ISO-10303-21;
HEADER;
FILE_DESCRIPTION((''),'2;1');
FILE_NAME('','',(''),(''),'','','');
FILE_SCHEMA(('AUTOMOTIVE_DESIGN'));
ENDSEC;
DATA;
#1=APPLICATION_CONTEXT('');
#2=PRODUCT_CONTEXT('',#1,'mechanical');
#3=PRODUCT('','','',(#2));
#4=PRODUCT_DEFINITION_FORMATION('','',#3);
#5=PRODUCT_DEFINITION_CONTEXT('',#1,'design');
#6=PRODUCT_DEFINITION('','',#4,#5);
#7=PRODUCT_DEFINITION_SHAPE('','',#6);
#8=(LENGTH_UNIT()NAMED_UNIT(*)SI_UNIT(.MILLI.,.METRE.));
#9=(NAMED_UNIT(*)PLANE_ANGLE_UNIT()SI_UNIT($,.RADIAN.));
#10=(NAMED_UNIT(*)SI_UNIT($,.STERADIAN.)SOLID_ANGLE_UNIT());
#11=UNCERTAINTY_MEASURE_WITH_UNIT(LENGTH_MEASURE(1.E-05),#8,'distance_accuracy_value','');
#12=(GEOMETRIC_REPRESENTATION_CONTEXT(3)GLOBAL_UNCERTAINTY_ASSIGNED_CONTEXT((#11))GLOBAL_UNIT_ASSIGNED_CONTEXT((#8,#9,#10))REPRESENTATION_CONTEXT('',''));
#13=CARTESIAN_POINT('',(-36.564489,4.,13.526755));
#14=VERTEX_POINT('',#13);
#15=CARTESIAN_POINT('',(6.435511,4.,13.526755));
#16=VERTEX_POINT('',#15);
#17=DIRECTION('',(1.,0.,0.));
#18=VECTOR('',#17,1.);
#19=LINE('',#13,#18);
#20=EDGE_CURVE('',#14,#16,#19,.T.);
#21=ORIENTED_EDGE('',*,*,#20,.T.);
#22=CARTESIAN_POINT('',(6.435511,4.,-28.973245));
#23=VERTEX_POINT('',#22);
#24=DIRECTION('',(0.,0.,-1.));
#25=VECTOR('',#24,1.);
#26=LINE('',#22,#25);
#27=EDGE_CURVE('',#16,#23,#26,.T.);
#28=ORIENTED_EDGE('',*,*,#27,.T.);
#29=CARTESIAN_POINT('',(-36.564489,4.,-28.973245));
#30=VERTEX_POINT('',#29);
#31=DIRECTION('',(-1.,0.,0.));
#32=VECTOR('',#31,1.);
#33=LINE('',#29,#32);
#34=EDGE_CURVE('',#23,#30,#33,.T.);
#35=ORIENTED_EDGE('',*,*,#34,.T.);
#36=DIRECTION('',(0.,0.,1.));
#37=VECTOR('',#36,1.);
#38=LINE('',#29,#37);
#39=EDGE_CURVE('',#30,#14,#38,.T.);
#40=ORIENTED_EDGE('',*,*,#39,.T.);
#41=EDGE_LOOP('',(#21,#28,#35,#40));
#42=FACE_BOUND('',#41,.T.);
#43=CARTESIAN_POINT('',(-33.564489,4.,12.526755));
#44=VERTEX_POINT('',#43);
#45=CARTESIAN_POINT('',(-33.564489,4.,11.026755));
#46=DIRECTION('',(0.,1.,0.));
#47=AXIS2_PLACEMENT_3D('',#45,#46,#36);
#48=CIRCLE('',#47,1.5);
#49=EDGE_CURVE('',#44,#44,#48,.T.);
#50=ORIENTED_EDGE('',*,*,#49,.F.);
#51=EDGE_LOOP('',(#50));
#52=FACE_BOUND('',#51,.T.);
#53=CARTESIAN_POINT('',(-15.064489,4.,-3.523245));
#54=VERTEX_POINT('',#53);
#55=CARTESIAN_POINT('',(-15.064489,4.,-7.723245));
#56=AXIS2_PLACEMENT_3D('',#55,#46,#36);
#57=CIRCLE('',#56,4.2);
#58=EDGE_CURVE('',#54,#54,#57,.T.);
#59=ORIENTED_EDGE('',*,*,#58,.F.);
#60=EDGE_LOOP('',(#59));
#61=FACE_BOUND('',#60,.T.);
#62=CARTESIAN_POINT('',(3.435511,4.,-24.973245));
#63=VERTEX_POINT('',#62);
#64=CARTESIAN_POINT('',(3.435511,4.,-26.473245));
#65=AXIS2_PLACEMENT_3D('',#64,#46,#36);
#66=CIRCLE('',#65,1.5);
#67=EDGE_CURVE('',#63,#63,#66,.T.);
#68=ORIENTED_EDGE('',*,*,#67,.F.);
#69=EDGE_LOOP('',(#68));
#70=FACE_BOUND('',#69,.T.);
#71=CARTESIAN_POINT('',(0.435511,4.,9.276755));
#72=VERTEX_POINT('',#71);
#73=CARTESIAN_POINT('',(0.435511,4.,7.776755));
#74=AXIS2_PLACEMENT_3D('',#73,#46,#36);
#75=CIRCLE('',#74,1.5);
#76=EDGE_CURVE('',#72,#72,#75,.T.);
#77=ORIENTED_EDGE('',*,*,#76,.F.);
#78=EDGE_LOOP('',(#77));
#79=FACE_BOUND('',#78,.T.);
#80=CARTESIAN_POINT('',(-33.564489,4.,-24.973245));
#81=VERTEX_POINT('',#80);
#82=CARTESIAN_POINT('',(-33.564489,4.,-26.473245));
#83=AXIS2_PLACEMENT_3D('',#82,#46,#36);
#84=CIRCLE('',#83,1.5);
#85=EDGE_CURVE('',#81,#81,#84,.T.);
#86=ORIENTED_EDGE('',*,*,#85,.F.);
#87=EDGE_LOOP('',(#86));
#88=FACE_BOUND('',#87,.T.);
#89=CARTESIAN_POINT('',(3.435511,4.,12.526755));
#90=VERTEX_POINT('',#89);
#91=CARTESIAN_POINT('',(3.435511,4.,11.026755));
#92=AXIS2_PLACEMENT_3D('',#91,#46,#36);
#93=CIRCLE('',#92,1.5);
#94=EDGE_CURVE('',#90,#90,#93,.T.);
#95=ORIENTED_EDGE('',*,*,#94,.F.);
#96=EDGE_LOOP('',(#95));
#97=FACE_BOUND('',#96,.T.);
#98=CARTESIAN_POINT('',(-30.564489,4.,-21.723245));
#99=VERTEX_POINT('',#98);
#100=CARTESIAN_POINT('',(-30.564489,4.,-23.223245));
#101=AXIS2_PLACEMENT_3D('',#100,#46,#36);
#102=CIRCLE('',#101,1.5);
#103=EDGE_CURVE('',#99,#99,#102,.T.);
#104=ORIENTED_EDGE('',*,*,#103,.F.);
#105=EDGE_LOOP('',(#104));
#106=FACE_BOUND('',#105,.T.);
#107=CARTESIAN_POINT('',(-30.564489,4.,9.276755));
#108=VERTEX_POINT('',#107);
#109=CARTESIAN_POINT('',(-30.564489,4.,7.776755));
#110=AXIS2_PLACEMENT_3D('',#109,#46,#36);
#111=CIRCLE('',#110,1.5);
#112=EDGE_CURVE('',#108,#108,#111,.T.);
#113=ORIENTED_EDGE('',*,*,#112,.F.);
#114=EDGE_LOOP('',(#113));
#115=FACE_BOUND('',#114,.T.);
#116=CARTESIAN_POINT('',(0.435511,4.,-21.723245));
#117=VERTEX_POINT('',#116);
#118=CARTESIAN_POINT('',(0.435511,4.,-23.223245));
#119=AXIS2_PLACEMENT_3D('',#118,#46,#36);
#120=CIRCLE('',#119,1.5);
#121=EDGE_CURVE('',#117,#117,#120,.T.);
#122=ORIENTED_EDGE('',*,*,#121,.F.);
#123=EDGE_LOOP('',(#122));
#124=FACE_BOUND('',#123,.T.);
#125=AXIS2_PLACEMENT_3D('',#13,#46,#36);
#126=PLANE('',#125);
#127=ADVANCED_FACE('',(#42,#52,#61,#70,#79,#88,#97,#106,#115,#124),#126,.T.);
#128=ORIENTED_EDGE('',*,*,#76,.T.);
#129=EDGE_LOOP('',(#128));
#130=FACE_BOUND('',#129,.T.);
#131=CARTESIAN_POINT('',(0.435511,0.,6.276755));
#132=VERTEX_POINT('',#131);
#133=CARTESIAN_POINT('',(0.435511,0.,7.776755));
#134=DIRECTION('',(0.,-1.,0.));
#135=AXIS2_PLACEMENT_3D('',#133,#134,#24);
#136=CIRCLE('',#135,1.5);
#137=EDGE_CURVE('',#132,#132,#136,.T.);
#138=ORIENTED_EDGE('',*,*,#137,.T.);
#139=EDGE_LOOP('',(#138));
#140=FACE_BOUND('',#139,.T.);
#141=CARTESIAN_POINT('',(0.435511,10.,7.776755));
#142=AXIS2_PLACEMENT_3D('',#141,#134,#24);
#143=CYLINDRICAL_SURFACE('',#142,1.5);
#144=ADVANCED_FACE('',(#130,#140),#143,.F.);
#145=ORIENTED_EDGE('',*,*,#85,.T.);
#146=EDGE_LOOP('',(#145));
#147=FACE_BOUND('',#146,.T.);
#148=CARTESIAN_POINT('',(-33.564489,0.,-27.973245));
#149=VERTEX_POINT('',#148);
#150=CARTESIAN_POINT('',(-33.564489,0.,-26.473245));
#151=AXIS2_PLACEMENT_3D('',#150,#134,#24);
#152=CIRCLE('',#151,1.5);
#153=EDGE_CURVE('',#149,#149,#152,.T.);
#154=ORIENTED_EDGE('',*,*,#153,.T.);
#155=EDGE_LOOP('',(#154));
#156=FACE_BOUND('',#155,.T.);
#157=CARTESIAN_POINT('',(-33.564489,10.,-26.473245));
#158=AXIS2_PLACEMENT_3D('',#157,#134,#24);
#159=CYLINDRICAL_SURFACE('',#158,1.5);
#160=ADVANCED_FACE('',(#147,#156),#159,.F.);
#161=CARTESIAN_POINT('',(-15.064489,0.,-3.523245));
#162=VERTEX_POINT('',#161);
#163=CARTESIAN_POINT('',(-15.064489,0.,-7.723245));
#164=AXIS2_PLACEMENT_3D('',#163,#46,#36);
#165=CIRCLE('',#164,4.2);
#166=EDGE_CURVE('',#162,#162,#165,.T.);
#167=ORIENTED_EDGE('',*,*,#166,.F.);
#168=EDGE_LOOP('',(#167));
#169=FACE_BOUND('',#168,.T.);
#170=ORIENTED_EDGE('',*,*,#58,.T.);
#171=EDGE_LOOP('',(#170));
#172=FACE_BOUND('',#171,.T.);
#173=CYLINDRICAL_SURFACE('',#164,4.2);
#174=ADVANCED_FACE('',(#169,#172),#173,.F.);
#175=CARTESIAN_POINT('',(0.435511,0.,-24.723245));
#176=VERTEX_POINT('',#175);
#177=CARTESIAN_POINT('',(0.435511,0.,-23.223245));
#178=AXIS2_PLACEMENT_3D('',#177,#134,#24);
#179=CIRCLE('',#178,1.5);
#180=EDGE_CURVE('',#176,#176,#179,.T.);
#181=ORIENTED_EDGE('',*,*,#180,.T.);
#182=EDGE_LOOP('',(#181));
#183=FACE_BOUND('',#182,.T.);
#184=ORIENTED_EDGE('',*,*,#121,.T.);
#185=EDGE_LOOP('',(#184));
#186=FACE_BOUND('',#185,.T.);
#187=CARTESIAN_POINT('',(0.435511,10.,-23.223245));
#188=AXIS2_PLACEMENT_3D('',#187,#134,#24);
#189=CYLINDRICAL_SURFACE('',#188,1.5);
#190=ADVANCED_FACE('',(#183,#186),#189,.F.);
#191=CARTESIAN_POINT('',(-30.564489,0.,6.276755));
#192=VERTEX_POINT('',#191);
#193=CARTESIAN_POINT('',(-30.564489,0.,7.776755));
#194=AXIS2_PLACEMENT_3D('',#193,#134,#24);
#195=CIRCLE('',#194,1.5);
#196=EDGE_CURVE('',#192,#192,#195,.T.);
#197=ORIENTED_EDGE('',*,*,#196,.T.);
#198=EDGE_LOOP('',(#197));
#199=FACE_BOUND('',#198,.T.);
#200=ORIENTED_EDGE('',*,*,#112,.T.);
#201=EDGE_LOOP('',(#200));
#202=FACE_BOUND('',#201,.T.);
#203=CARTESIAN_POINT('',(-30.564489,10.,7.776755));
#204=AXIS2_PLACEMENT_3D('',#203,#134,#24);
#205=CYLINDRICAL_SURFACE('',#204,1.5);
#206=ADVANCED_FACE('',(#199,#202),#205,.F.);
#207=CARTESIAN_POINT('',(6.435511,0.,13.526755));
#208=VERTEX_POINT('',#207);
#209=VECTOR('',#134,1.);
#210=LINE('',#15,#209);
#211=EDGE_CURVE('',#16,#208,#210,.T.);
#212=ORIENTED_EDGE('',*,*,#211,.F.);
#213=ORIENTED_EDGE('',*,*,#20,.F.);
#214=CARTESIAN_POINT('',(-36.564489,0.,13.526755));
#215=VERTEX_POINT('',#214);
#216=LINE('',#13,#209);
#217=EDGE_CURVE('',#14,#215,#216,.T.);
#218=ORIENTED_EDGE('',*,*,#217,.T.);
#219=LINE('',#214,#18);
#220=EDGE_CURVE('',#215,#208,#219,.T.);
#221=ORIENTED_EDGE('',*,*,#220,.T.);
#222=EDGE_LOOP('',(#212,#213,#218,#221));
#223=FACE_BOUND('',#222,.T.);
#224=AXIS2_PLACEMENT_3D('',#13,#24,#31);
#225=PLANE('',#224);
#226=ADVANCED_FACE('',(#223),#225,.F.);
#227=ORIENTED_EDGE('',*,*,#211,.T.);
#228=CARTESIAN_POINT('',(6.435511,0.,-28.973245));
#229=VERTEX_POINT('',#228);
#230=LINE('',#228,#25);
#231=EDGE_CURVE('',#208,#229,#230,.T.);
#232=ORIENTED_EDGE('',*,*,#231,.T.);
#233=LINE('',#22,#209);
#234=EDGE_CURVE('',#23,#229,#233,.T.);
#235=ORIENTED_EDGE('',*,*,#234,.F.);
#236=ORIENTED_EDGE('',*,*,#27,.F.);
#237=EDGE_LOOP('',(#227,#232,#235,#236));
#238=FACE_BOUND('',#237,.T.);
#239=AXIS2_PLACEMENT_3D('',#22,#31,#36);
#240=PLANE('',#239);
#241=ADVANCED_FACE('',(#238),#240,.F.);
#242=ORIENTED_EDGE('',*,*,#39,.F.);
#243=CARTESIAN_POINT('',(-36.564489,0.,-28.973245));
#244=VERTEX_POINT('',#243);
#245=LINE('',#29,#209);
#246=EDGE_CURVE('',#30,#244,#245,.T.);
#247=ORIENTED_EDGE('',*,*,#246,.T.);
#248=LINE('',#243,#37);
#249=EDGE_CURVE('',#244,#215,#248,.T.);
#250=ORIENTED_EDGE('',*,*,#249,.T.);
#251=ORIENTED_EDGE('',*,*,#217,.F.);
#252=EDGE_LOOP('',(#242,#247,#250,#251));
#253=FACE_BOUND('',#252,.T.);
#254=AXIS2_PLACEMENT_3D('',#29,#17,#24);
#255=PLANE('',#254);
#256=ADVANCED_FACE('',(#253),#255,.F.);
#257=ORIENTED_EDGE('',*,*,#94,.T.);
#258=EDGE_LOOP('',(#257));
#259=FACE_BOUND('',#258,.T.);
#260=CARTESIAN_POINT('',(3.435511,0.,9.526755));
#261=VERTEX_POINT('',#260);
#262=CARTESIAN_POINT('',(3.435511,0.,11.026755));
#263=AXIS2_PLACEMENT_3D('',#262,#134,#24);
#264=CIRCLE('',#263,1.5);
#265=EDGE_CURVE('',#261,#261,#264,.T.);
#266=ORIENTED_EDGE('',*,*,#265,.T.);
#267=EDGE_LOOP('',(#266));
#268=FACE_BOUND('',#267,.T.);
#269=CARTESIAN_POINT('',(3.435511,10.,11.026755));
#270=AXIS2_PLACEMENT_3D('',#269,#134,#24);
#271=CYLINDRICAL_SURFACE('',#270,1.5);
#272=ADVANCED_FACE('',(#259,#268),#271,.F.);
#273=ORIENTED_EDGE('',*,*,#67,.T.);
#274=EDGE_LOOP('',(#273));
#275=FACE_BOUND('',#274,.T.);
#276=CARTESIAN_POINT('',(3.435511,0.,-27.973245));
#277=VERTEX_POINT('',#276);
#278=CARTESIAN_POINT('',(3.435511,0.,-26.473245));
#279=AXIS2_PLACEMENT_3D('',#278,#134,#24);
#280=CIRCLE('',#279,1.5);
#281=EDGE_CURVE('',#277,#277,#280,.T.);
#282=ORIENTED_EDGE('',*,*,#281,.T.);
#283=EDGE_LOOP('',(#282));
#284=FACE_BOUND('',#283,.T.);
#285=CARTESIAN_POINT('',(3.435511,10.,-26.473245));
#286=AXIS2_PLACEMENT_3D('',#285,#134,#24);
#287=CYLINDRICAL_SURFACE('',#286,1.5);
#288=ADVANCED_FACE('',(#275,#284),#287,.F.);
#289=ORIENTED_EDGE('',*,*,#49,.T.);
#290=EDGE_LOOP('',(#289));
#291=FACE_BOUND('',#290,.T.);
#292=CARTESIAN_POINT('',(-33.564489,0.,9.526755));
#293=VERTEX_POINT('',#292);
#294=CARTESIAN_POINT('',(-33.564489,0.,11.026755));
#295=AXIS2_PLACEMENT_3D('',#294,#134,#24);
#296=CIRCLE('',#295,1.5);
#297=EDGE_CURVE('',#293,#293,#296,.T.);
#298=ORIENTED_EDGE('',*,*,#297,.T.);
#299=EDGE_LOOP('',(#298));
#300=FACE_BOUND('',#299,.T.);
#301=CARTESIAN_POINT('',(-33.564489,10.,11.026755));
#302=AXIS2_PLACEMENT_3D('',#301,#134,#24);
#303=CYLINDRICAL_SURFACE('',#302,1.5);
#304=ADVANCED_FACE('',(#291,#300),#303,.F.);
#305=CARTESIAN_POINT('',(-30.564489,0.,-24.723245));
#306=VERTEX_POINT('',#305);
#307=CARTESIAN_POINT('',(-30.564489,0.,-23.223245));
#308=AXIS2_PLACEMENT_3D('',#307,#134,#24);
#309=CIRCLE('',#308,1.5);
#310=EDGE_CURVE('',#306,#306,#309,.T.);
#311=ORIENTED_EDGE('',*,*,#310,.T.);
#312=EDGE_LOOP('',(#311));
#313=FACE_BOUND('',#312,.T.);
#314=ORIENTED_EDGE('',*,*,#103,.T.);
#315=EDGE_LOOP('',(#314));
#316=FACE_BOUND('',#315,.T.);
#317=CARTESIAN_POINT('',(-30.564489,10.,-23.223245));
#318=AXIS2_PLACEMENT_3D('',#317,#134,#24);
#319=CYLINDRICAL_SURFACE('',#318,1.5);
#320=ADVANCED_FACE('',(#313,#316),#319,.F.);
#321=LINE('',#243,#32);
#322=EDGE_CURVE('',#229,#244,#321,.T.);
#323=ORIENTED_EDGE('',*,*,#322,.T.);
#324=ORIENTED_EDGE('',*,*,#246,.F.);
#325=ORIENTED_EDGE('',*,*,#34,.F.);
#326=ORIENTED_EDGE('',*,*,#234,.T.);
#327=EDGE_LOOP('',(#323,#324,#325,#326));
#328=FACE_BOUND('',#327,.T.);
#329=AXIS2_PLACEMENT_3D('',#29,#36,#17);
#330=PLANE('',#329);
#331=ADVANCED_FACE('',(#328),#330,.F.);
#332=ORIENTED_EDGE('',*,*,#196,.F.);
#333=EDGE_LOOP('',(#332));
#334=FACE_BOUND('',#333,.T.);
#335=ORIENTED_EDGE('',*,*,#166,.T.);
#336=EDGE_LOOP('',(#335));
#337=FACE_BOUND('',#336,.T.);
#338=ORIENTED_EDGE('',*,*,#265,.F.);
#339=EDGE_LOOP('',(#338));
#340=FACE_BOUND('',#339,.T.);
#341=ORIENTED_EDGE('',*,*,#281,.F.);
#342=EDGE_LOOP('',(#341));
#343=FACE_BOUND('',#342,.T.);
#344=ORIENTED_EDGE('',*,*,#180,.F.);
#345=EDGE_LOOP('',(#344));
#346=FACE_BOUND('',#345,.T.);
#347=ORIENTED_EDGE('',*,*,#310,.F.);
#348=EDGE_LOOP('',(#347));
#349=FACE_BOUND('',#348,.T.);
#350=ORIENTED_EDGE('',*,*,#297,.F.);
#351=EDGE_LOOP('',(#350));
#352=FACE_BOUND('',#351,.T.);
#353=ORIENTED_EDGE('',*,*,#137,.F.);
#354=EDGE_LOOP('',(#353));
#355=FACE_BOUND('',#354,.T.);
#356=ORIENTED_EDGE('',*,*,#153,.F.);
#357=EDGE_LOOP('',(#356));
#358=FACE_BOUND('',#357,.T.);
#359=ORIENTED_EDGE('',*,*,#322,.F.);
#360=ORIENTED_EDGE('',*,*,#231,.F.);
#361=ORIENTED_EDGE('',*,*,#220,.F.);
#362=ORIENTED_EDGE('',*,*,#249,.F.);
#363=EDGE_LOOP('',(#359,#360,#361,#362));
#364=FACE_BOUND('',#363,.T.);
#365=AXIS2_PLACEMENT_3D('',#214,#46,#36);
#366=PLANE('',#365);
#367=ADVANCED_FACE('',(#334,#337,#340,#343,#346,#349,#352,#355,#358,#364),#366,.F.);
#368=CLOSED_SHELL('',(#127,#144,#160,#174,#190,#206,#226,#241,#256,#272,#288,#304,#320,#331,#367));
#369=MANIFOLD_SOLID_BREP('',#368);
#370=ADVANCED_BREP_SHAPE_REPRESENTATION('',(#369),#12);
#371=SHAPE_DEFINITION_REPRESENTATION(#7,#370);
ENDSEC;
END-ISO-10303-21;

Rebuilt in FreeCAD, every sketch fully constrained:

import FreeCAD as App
import Part
import Sketcher
Q = App.Units.Quantity


def add_polygon(sketch, points):
    """Adds a closed chain of lines whose ends are joined by coincident constraints."""
    first, n = sketch.GeometryCount, len(points)
    for a, b in zip(points, points[1:] + points[:1]):
        sketch.addGeometry(Part.LineSegment(App.Vector(*a, 0), App.Vector(*b, 0)), False)
    for i in range(n):
        sketch.addConstraint(Sketcher.Constraint("Coincident", first + i, 2, first + (i + 1) % n, 1))

doc = App.newDocument("Part")
body = doc.addObject("PartDesign::Body", "Body")

# Sketch on XZ plane
sketch1 = body.newObject("Sketcher::SketchObject", "Sketch")
sketch1.AttachmentSupport = (doc.getObject("XZ_Plane"), [""])
sketch1.MapMode = "FlatFace"
add_polygon(sketch1, [(-37, -29), (-37, 14), (6, 14), (6, -29)])  # lines 0-3
sketch1.addConstraint(Sketcher.Constraint("Vertical", 0))
sketch1.addConstraint(Sketcher.Constraint("Horizontal", 1))
sketch1.addConstraint(Sketcher.Constraint("Vertical", 2))
sketch1.addConstraint(Sketcher.Constraint("Horizontal", 3))
sketch1.addConstraint(Sketcher.Constraint("DistanceX", 1, 1, 1, 2, Q("43 mm")))
sketch1.addConstraint(Sketcher.Constraint("DistanceY", 0, 1, 0, 2, Q("42.5 mm")))
sketch1.addConstraint(Sketcher.Constraint("DistanceX", 0, 2, -1, 1, Q("36.564489 mm")))
sketch1.addConstraint(Sketcher.Constraint("DistanceY", -1, 1, 0, 2, Q("13.526755 mm")))
pad1 = body.newObject("PartDesign::Pad", "Pad")
pad1.Profile = sketch1
pad1.Length = 4
pad1.Reversed = True

# Sketch on XZ plane
sketch2 = body.newObject("Sketcher::SketchObject", "Sketch001")
sketch2.AttachmentSupport = (doc.getObject("XZ_Plane"), [""])
sketch2.MapMode = "FlatFace"
sketch2.addGeometry(Part.Circle(App.Vector(-33.6, 11, 0), App.Vector(0, 0, 1), 1.5), False)
sketch2.addGeometry(Part.Circle(App.Vector(3.4, 11, 0), App.Vector(0, 0, 1), 1.5), False)
sketch2.addGeometry(Part.Circle(App.Vector(-33.6, -26.5, 0), App.Vector(0, 0, 1), 1.5), False)
sketch2.addGeometry(Part.Circle(App.Vector(3.4, -26.5, 0), App.Vector(0, 0, 1), 1.5), False)
sketch2.addConstraint(Sketcher.Constraint("Equal", 0, 1))
sketch2.addConstraint(Sketcher.Constraint("Equal", 1, 2))
sketch2.addConstraint(Sketcher.Constraint("Equal", 2, 3))
sketch2.addConstraint(Sketcher.Constraint("Horizontal", 0, 3, 1, 3))
sketch2.addConstraint(Sketcher.Constraint("Horizontal", 2, 3, 3, 3))
sketch2.addConstraint(Sketcher.Constraint("Vertical", 0, 3, 2, 3))
sketch2.addConstraint(Sketcher.Constraint("Vertical", 1, 3, 3, 3))
sketch2.addConstraint(Sketcher.Constraint("Diameter", 0, Q("3 mm")))
sketch2.addConstraint(Sketcher.Constraint("DistanceX", 0, 3, 1, 3, Q("37 mm")))
sketch2.addConstraint(Sketcher.Constraint("DistanceY", 2, 3, 0, 3, Q("37.5 mm")))
sketch2.addConstraint(Sketcher.Constraint("DistanceX", 0, 3, -1, 1, Q("33.564489 mm")))
sketch2.addConstraint(Sketcher.Constraint("DistanceY", -1, 1, 0, 3, Q("11.026755 mm")))
pocket1 = body.newObject("PartDesign::Pocket", "Pocket")
pocket1.Profile = sketch2
pocket1.Length = 10

# Sketch on XZ plane
sketch3 = body.newObject("Sketcher::SketchObject", "Sketch002")
sketch3.AttachmentSupport = (doc.getObject("XZ_Plane"), [""])
sketch3.MapMode = "FlatFace"
sketch3.addGeometry(Part.Circle(App.Vector(-30.6, 7.8, 0), App.Vector(0, 0, 1), 1.5), False)
sketch3.addGeometry(Part.Circle(App.Vector(-30.6, -23.2, 0), App.Vector(0, 0, 1), 1.5), False)
sketch3.addGeometry(Part.Circle(App.Vector(0.4, 7.8, 0), App.Vector(0, 0, 1), 1.5), False)
sketch3.addGeometry(Part.Circle(App.Vector(0.4, -23.2, 0), App.Vector(0, 0, 1), 1.5), False)
sketch3.addConstraint(Sketcher.Constraint("Equal", 0, 1))
sketch3.addConstraint(Sketcher.Constraint("Equal", 1, 2))
sketch3.addConstraint(Sketcher.Constraint("Equal", 2, 3))
sketch3.addConstraint(Sketcher.Constraint("Horizontal", 0, 3, 2, 3))
sketch3.addConstraint(Sketcher.Constraint("Horizontal", 1, 3, 3, 3))
sketch3.addConstraint(Sketcher.Constraint("Vertical", 0, 3, 1, 3))
sketch3.addConstraint(Sketcher.Constraint("Vertical", 2, 3, 3, 3))
sketch3.addConstraint(Sketcher.Constraint("Diameter", 0, Q("3 mm")))
sketch3.addConstraint(Sketcher.Constraint("DistanceY", 1, 3, 0, 3, Q("31 mm")))
sketch3.addConstraint(Sketcher.Constraint("DistanceX", 0, 3, 2, 3, Q("31 mm")))
sketch3.addConstraint(Sketcher.Constraint("DistanceX", 0, 3, -1, 1, Q("30.564489 mm")))
sketch3.addConstraint(Sketcher.Constraint("DistanceY", -1, 1, 0, 3, Q("7.776755 mm")))
pocket2 = body.newObject("PartDesign::Pocket", "Pocket001")
pocket2.Profile = sketch3
pocket2.Length = 10

# Sketch on XZ plane
sketch4 = body.newObject("Sketcher::SketchObject", "Sketch003")
sketch4.AttachmentSupport = (doc.getObject("XZ_Plane"), [""])
sketch4.MapMode = "FlatFace"
sketch4.AttachmentOffset = App.Placement(App.Vector(0, 0, -4), App.Rotation())
sketch4.addGeometry(Part.Circle(App.Vector(-15.1, -7.7, 0), App.Vector(0, 0, 1), 4.2), False)
sketch4.addConstraint(Sketcher.Constraint("Diameter", 0, Q("8.4 mm")))
sketch4.addConstraint(Sketcher.Constraint("DistanceX", 0, 3, -1, 1, Q("15.064489 mm")))
sketch4.addConstraint(Sketcher.Constraint("DistanceY", 0, 3, -1, 1, Q("7.723245 mm")))
pocket3 = body.newObject("PartDesign::Pocket", "Pocket002")
pocket3.Profile = sketch4
pocket3.Length = 4
pocket3.Reversed = True

doc.recompute()
